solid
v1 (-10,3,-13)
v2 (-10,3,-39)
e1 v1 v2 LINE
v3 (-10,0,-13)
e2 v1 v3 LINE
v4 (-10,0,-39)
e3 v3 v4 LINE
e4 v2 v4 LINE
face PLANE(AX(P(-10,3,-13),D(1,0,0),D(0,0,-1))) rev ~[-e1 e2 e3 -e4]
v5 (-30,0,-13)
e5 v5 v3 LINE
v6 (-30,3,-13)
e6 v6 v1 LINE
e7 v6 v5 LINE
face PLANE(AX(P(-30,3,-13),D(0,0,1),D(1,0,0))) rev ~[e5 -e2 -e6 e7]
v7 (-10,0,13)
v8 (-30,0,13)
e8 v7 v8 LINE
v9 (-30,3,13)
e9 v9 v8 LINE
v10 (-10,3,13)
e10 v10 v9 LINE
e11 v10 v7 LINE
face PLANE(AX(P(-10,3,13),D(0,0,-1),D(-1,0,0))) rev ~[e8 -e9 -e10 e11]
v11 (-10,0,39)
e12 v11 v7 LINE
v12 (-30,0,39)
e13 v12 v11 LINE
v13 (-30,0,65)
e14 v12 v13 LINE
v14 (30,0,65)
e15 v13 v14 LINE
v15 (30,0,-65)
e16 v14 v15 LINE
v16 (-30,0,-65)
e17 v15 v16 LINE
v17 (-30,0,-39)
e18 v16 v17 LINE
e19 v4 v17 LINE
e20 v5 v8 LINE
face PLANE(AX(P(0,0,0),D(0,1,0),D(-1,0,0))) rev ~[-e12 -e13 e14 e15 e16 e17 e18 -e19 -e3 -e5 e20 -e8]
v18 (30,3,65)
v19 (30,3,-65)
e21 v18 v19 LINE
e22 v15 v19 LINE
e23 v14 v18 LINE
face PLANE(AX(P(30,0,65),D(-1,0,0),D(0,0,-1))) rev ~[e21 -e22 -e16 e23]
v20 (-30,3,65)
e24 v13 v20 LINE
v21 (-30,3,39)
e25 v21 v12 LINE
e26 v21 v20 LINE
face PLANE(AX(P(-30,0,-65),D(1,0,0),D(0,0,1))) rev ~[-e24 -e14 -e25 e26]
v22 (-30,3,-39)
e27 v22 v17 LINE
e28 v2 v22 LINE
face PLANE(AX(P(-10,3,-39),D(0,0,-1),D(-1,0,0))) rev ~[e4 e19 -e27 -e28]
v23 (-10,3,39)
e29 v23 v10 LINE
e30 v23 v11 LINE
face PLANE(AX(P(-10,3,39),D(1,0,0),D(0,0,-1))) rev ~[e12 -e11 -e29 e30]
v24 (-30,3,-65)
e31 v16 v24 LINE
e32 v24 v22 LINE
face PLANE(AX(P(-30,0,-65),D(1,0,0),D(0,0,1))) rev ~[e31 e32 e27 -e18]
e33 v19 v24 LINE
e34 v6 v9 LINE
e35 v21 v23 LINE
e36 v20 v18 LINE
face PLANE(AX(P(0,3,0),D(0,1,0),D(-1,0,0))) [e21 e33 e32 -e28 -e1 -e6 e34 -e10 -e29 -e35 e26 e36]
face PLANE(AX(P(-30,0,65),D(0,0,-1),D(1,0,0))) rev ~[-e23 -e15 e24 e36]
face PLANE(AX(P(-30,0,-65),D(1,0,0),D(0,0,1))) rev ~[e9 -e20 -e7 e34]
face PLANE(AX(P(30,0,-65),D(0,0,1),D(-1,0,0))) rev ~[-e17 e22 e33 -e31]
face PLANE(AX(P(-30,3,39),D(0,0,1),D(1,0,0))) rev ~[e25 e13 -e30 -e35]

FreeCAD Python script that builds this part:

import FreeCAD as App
import Part
import Sketcher

V = App.Vector
Q = App.Units.Quantity

doc = App.newDocument("Part")
params = doc.addObject("Spreadsheet::Sheet", "Params")
for row, (alias, value) in enumerate([
    ("sketch1_width", "60 mm"),
    ("sketch1_height", "130 mm"),
    ("pad1_length", "3 mm"),
    ("sketch2_width", "20 mm"),
    ("sketch2_height", "26 mm"),
    ("pocket1_length", "10 mm"),
], start=1):
    params.set(f"A{row}", alias)
    params.set(f"B{row}", "=" + value)
    params.setAlias(f"B{row}", alias)

body = doc.addObject("PartDesign::Body", "Body")

sketch1 = body.newObject("Sketcher::SketchObject", "Sketch")
sketch1.AttachmentSupport = (doc.getObject("XZ_Plane"), [""])
sketch1.MapMode = "FlatFace"
sketch1.addGeometry([
    Part.LineSegment(V(-30, -65, 0), V(-30, 65, 0)),
    Part.LineSegment(V(-30, 65, 0), V(30, 65, 0)),
    Part.LineSegment(V(30, 65, 0), V(30, -65, 0)),
    Part.LineSegment(V(30, -65, 0), V(-30, -65, 0)),
], False)
sketch1.addConstraint([
    Sketcher.Constraint("Coincident", 0, 2, 1, 1),
    Sketcher.Constraint("Coincident", 1, 2, 2, 1),
    Sketcher.Constraint("Coincident", 2, 2, 3, 1),
    Sketcher.Constraint("Coincident", 3, 2, 0, 1),
    Sketcher.Constraint("Vertical", 0),
    Sketcher.Constraint("Horizontal", 1),
    Sketcher.Constraint("Vertical", 2),
    Sketcher.Constraint("Horizontal", 3),
    Sketcher.Constraint("Symmetric", 0, 2, 2, 2, -1, 1),
    Sketcher.Constraint("DistanceX", 1, 1, 1, 2, Q("60 mm")),
    Sketcher.Constraint("DistanceY", 0, 1, 0, 2, Q("130 mm")),
])
sketch1.setExpression("Constraints[9]", "Params.sketch1_width")
sketch1.setExpression("Constraints[10]", "Params.sketch1_height")
pad1 = body.newObject("PartDesign::Pad", "Pad")
pad1.Profile = sketch1
pad1.setExpression("Length", "Params.pad1_length")
pad1.Reversed = True

sketch2 = body.newObject("Sketcher::SketchObject", "Sketch001")
sketch2.AttachmentSupport = (doc.getObject("XZ_Plane"), [""])
sketch2.MapMode = "FlatFace"
sketch2.AttachmentOffset = App.Placement(V(0, 0, -3), App.Rotation())
sketch2.addGeometry([
    Part.LineSegment(V(-10, -39, 0), V(-30, -39, 0)),
    Part.LineSegment(V(-30, -39, 0), V(-30, -13, 0)),
    Part.LineSegment(V(-30, -13, 0), V(-10, -13, 0)),
    Part.LineSegment(V(-10, -13, 0), V(-10, -39, 0)),
    Part.LineSegment(V(-10, 13, 0), V(-30, 13, 0)),
    Part.LineSegment(V(-30, 13, 0), V(-30, 39, 0)),
    Part.LineSegment(V(-30, 39, 0), V(-10, 39, 0)),
    Part.LineSegment(V(-10, 39, 0), V(-10, 13, 0)),
], False)
sketch2.addConstraint([
    Sketcher.Constraint("Coincident", 0, 2, 1, 1),
    Sketcher.Constraint("Coincident", 1, 2, 2, 1),
    Sketcher.Constraint("Coincident", 2, 2, 3, 1),
    Sketcher.Constraint("Coincident", 3, 2, 0, 1),
    Sketcher.Constraint("Coincident", 4, 2, 5, 1),
    Sketcher.Constraint("Coincident", 5, 2, 6, 1),
    Sketcher.Constraint("Coincident", 6, 2, 7, 1),
    Sketcher.Constraint("Coincident", 7, 2, 4, 1),
    Sketcher.Constraint("Horizontal", 0),
    Sketcher.Constraint("Vertical", 1),
    Sketcher.Constraint("Horizontal", 2),
    Sketcher.Constraint("Vertical", 3),
    Sketcher.Constraint("Horizontal", 4),
    Sketcher.Constraint("Vertical", 5),
    Sketcher.Constraint("Horizontal", 6),
    Sketcher.Constraint("Vertical", 7),
    Sketcher.Constraint("Symmetric", 1, 2, 4, 2, -1),
    Sketcher.Constraint("Symmetric", 3, 2, 6, 2, -1),
    Sketcher.Constraint("DistanceX", 0, 2, 0, 1, Q("20 mm")),
    Sketcher.Constraint("DistanceY", 1, 1, 1, 2, Q("26 mm")),
    Sketcher.Constraint("DistanceY", 1, 2, 4, 2, Q("26 mm")),
    Sketcher.Constraint("DistanceX", 0, 2, -1, 1, Q("30 mm")),
])
sketch2.setExpression("Constraints[18]", "Params.sketch2_width")
sketch2.setExpression("Constraints[19]", "Params.sketch2_height")
pocket1 = body.newObject("PartDesign::Pocket", "Pocket")
pocket1.Profile = sketch2
pocket1.setExpression("Length", "Params.pocket1_length")
pocket1.Reversed = True

doc.recompute()
